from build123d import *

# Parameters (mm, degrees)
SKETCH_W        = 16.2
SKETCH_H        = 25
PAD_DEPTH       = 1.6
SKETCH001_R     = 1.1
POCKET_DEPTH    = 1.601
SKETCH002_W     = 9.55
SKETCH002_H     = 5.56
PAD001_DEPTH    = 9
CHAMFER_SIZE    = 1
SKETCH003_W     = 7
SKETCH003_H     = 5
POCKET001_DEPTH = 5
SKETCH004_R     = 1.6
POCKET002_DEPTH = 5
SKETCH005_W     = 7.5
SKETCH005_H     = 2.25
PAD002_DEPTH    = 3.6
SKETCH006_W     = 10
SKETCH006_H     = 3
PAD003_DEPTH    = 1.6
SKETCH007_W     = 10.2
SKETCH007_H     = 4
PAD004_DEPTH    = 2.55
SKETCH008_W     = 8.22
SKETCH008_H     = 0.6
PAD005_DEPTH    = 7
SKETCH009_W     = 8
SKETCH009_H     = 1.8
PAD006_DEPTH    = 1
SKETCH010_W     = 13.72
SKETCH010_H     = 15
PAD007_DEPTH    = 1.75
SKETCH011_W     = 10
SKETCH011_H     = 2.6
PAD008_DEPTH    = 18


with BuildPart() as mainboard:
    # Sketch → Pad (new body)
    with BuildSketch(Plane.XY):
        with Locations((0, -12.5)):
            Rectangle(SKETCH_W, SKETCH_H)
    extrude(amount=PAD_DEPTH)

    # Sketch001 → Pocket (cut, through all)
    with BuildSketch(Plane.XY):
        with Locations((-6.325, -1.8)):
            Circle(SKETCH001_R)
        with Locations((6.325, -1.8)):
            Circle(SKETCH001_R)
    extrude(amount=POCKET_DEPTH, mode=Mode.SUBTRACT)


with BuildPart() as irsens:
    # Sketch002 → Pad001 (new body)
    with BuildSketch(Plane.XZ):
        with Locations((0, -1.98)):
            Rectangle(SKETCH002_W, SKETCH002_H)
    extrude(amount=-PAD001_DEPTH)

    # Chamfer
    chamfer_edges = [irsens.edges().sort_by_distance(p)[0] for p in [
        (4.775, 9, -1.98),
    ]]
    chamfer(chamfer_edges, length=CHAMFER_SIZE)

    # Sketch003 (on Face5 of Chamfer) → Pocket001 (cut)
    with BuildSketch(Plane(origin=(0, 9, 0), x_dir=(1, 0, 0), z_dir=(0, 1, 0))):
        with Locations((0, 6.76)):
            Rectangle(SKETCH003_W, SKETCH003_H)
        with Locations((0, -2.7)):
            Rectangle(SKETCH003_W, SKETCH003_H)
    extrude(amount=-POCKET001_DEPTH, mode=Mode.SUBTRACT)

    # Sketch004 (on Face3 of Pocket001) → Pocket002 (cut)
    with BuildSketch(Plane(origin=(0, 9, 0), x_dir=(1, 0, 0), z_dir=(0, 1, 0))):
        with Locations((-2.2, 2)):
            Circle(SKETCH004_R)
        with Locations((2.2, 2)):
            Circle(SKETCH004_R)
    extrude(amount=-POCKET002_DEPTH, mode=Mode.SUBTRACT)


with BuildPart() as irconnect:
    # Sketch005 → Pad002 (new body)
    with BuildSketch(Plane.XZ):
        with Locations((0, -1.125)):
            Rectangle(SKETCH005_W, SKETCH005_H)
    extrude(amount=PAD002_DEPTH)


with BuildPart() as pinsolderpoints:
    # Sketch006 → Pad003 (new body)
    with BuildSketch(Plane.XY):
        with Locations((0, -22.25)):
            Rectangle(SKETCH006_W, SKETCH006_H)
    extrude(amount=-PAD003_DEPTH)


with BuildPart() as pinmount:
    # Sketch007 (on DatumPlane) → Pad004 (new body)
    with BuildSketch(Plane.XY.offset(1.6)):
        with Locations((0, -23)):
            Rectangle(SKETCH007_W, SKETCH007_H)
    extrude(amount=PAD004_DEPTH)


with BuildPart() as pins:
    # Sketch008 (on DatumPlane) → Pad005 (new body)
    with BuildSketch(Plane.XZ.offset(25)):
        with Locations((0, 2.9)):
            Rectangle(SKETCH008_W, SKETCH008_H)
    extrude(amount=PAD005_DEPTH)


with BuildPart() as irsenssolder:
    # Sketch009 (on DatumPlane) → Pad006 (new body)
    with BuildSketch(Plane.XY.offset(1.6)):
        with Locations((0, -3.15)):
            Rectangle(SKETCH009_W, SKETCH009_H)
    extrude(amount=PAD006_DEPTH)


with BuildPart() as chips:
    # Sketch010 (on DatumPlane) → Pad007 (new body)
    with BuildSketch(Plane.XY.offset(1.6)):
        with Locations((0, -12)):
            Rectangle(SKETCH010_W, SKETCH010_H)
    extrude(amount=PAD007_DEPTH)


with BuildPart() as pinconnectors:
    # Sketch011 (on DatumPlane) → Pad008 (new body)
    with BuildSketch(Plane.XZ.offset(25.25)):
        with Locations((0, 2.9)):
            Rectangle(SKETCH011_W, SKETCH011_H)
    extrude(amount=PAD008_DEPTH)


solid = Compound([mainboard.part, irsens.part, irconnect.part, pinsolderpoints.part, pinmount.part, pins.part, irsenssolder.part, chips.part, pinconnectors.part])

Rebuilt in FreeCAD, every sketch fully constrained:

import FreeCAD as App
import Part
import Sketcher

V = App.Vector


def edges_at(feature, points):
    """Names of the edges that pass closest to the given points."""
    edges = feature.Shape.Edges
    near = lambda p: min(range(len(edges)), key=lambda i: edges[i].distToShape(Part.Vertex(*p))[0])
    return sorted({f"Edge{near(p) + 1}" for p in points})


def add_polygon(sketch, points):
    """Adds a closed chain of lines whose ends are joined by coincident constraints."""
    first, n = sketch.GeometryCount, len(points)
    for a, b in zip(points, points[1:] + points[:1]):
        sketch.addGeometry(Part.LineSegment(App.Vector(*a, 0), App.Vector(*b, 0)), False)
    for i in range(n):
        sketch.addConstraint(Sketcher.Constraint("Coincident", first + i, 2, first + (i + 1) % n, 1))

doc = App.newDocument("Part")
body = doc.addObject("PartDesign::Body", "Body")

sketch1 = doc.addObject("Sketcher::SketchObject", "Sketch")
body.addObject(sketch1)
sketch1.AttachmentSupport = (doc.XY_Plane, [""])
sketch1.MapMode = "FlatFace"
add_polygon(sketch1, [(-8.1, 0), (-8.1, -25), (8.1, -25), (8.1, 0)])
sketch1.addConstraint(Sketcher.Constraint("Vertical", 0))
sketch1.addConstraint(Sketcher.Constraint("Horizontal", 1))
sketch1.addConstraint(Sketcher.Constraint("Vertical", 2))
sketch1.addConstraint(Sketcher.Constraint("Horizontal", 3))
sketch1.addConstraint(Sketcher.Constraint("Symmetric", 2, 2, 3, 2, -1, 1))
sketch1.addConstraint(Sketcher.Constraint("DistanceY", 0, 2, 0, 1, 25.0))
sketch1.addConstraint(Sketcher.Constraint("DistanceX", 1, 1, 1, 2, 16.2))
pad1 = doc.addObject("PartDesign::Pad", "Pad")
body.addObject(pad1)
pad1.Profile = sketch1
pad1.Length = 1.6

sketch2 = doc.addObject("Sketcher::SketchObject", "Sketch001")
body.addObject(sketch2)
sketch2.AttachmentSupport = (doc.XY_Plane, [""])
sketch2.MapMode = "FlatFace"
sketch2.addGeometry(Part.Circle(V(-6.325, -1.8, 0), V(0, 0, 1), 1.1), False)
sketch2.addGeometry(Part.Circle(V(6.325, -1.8, 0), V(0, 0, 1), 1.1), False)
sketch2.addConstraint(Sketcher.Constraint("Equal", 0, 1))
sketch2.addConstraint(Sketcher.Constraint("Symmetric", 0, 3, 1, 3, -2))
sketch2.addConstraint(Sketcher.Constraint("Diameter", 0, 2.2))
sketch2.addConstraint(Sketcher.Constraint("DistanceY", 0, 3, -1, 1, 1.8))
sketch2.addConstraint(Sketcher.Constraint("DistanceX", 0, 3, 1, 3, 12.65))
pocket1 = doc.addObject("PartDesign::Pocket", "Pocket")
body.addObject(pocket1)
pocket1.Profile = sketch2
pocket1.Type = "ThroughAll"
pocket1.Reversed = True
body2 = doc.addObject("PartDesign::Body", "Body001")

sketch3 = doc.addObject("Sketcher::SketchObject", "Sketch002")
body2.addObject(sketch3)
sketch3.AttachmentSupport = (doc.getObject("XZ_Plane001"), [""])
sketch3.MapMode = "FlatFace"
add_polygon(sketch3, [(-4.775, 0.8), (-4.775, -4.76), (4.775, -4.76), (4.775, 0.8)])
sketch3.addConstraint(Sketcher.Constraint("Vertical", 0))
sketch3.addConstraint(Sketcher.Constraint("Horizontal", 1))
sketch3.addConstraint(Sketcher.Constraint("Vertical", 2))
sketch3.addConstraint(Sketcher.Constraint("Horizontal", 3))
sketch3.addConstraint(Sketcher.Constraint("DistanceX", 1, 1, 1, 2, 9.55))
sketch3.addConstraint(Sketcher.Constraint("DistanceY", 0, 2, 0, 1, 5.56))
sketch3.addConstraint(Sketcher.Constraint("DistanceY", -1, 1, 2, 2, 0.8))
sketch3.addConstraint(Sketcher.Constraint("DistanceX", 0, 2, -1, 1, 4.775))
pad2 = doc.addObject("PartDesign::Pad", "Pad001")
body2.addObject(pad2)
pad2.Profile = sketch3
pad2.Length = 9
pad2.Reversed = True
doc.recompute()

chamfer = doc.addObject("PartDesign::Chamfer", "Chamfer")
body2.addObject(chamfer)
chamfer.Base = (pad2, edges_at(pad2, [(4.775, 9, -1.98)]))
chamfer.Size = 1

sketch4 = doc.addObject("Sketcher::SketchObject", "Sketch003")
body2.addObject(sketch4)
sketch4.AttachmentSupport = (doc.getObject("XZ_Plane001"), [""])
sketch4.MapMode = "FlatFace"
sketch4.AttachmentOffset = App.Placement(V(0, 0, -9), App.Rotation())
add_polygon(sketch4, [(-3.5, -9.26), (-3.5, -4.26), (3.5, -4.26), (3.5, -9.26)])
add_polygon(sketch4, [(-3.5, 0.2), (-3.5, 5.2), (3.5, 5.2), (3.5, 0.2)])
sketch4.addConstraint(Sketcher.Constraint("Vertical", 0))
sketch4.addConstraint(Sketcher.Constraint("Horizontal", 1))
sketch4.addConstraint(Sketcher.Constraint("Vertical", 2))
sketch4.addConstraint(Sketcher.Constraint("Horizontal", 3))
sketch4.addConstraint(Sketcher.Constraint("Vertical", 4))
sketch4.addConstraint(Sketcher.Constraint("Horizontal", 5))
sketch4.addConstraint(Sketcher.Constraint("Vertical", 6))
sketch4.addConstraint(Sketcher.Constraint("Horizontal", 7))
sketch4.addConstraint(Sketcher.Constraint("Vertical", 3, 2, 4, 2))
sketch4.addConstraint(Sketcher.Constraint("Vertical", 2, 2, 5, 2))
sketch4.addConstraint(Sketcher.Constraint("Equal", 2, 4))
sketch4.addConstraint(Sketcher.Constraint("DistanceX", 1, 1, 1, 2, 7.0))
sketch4.addConstraint(Sketcher.Constraint("DistanceY", 0, 1, 0, 2, 5.0))
sketch4.addConstraint(Sketcher.Constraint("DistanceX", 0, 2, -1, 1, 3.5))
sketch4.addConstraint(Sketcher.Constraint("DistanceY", -1, 1, 4, 2, 5.2))
sketch4.addConstraint(Sketcher.Constraint("DistanceY", 0, 2, -1, 1, 4.26))
pocket2 = doc.addObject("PartDesign::Pocket", "Pocket001")
body2.addObject(pocket2)
pocket2.Profile = sketch4
pocket2.Length = 5
pocket2.Reversed = True

sketch5 = doc.addObject("Sketcher::SketchObject", "Sketch004")
body2.addObject(sketch5)
sketch5.AttachmentSupport = (doc.getObject("XZ_Plane001"), [""])
sketch5.MapMode = "FlatFace"
sketch5.AttachmentOffset = App.Placement(V(0, 0, -9), App.Rotation())
sketch5.addGeometry(Part.Circle(V(-2.2, -2, 0), V(0, 0, 1), 1.6), False)
sketch5.addGeometry(Part.Circle(V(2.2, -2, 0), V(0, 0, 1), 1.6), False)
sketch5.addConstraint(Sketcher.Constraint("Equal", 0, 1))
sketch5.addConstraint(Sketcher.Constraint("Symmetric", 0, 3, 1, 3, -2))
sketch5.addConstraint(Sketcher.Constraint("Diameter", 0, 3.2))
sketch5.addConstraint(Sketcher.Constraint("DistanceY", 0, 3, -1, 1, 2.0))
sketch5.addConstraint(Sketcher.Constraint("DistanceX", 0, 3, -1, 1, 2.2))
pocket3 = doc.addObject("PartDesign::Pocket", "Pocket002")
body2.addObject(pocket3)
pocket3.Profile = sketch5
pocket3.Length = 5
pocket3.Reversed = True
body3 = doc.addObject("PartDesign::Body", "Body002")

sketch6 = doc.addObject("Sketcher::SketchObject", "Sketch005")
body3.addObject(sketch6)
sketch6.AttachmentSupport = (doc.getObject("XZ_Plane002"), [""])
sketch6.MapMode = "FlatFace"
add_polygon(sketch6, [(-3.75, 0), (-3.75, -2.25), (3.75, -2.25), (3.75, 0)])
sketch6.addConstraint(Sketcher.Constraint("Vertical", 0))
sketch6.addConstraint(Sketcher.Constraint("Horizontal", 1))
sketch6.addConstraint(Sketcher.Constraint("Vertical", 2))
sketch6.addConstraint(Sketcher.Constraint("Horizontal", 3))
sketch6.addConstraint(Sketcher.Constraint("Symmetric", 2, 2, 3, 2, -1, 1))
sketch6.addConstraint(Sketcher.Constraint("DistanceX", 1, 1, 1, 2, 7.5))
sketch6.addConstraint(Sketcher.Constraint("DistanceY", 0, 2, 0, 1, 2.25))
pad3 = doc.addObject("PartDesign::Pad", "Pad002")
body3.addObject(pad3)
pad3.Profile = sketch6
pad3.Length = 3.6
body4 = doc.addObject("PartDesign::Body", "Body003")

sketch7 = doc.addObject("Sketcher::SketchObject", "Sketch006")
body4.addObject(sketch7)
sketch7.AttachmentSupport = (doc.getObject("XY_Plane003"), [""])
sketch7.MapMode = "FlatFace"
add_polygon(sketch7, [(-5, -20.75), (-5, -23.75), (5, -23.75), (5, -20.75)])
sketch7.addConstraint(Sketcher.Constraint("Vertical", 0))
sketch7.addConstraint(Sketcher.Constraint("Horizontal", 1))
sketch7.addConstraint(Sketcher.Constraint("Vertical", 2))
sketch7.addConstraint(Sketcher.Constraint("Horizontal", 3))
sketch7.addConstraint(Sketcher.Constraint("DistanceX", 1, 1, 1, 2, 10.0))
sketch7.addConstraint(Sketcher.Constraint("DistanceY", 0, 2, 0, 1, 3.0))
sketch7.addConstraint(Sketcher.Constraint("DistanceX", 0, 2, -1, 1, 5.0))
sketch7.addConstraint(Sketcher.Constraint("DistanceY", 0, 2, -1, 1, 23.75))
pad4 = doc.addObject("PartDesign::Pad", "Pad003")
body4.addObject(pad4)
pad4.Profile = sketch7
pad4.Length = 1.6
pad4.Reversed = True
body5 = doc.addObject("PartDesign::Body", "Body004")

sketch8 = doc.addObject("Sketcher::SketchObject", "Sketch007")
body5.addObject(sketch8)
sketch8.AttachmentSupport = (doc.getObject("XY_Plane004"), [""])
sketch8.MapMode = "FlatFace"
sketch8.AttachmentOffset = App.Placement(V(0, 0, 1.6), App.Rotation())
add_polygon(sketch8, [(-5.1, -21), (-5.1, -25), (5.1, -25), (5.1, -21)])
sketch8.addConstraint(Sketcher.Constraint("Vertical", 0))
sketch8.addConstraint(Sketcher.Constraint("Horizontal", 1))
sketch8.addConstraint(Sketcher.Constraint("Vertical", 2))
sketch8.addConstraint(Sketcher.Constraint("Horizontal", 3))
sketch8.addConstraint(Sketcher.Constraint("DistanceY", 0, 2, 0, 1, 4.0))
sketch8.addConstraint(Sketcher.Constraint("DistanceX", 1, 1, 1, 2, 10.2))
sketch8.addConstraint(Sketcher.Constraint("DistanceY", 0, 2, -1, 1, 25.0))
sketch8.addConstraint(Sketcher.Constraint("DistanceX", 0, 2, -1, 1, 5.1))
pad5 = doc.addObject("PartDesign::Pad", "Pad004")
body5.addObject(pad5)
pad5.Profile = sketch8
pad5.Length = 2.55
body6 = doc.addObject("PartDesign::Body", "Body005")

sketch9 = doc.addObject("Sketcher::SketchObject", "Sketch008")
body6.addObject(sketch9)
sketch9.AttachmentSupport = (doc.getObject("XZ_Plane005"), [""])
sketch9.MapMode = "FlatFace"
sketch9.AttachmentOffset = App.Placement(V(0, 0, 25), App.Rotation())
add_polygon(sketch9, [(-4.11, 3.2), (-4.11, 2.6), (4.11, 2.6), (4.11, 3.2)])
sketch9.addConstraint(Sketcher.Constraint("Vertical", 0))
sketch9.addConstraint(Sketcher.Constraint("Horizontal", 1))
sketch9.addConstraint(Sketcher.Constraint("Vertical", 2))
sketch9.addConstraint(Sketcher.Constraint("Horizontal", 3))
sketch9.addConstraint(Sketcher.Constraint("DistanceY", 0, 2, 0, 1, 0.6))
sketch9.addConstraint(Sketcher.Constraint("DistanceX", 1, 1, 1, 2, 8.22))
sketch9.addConstraint(Sketcher.Constraint("DistanceY", -1, 1, 0, 2, 2.6))
sketch9.addConstraint(Sketcher.Constraint("DistanceX", 0, 2, -1, 1, 4.11))
pad6 = doc.addObject("PartDesign::Pad", "Pad005")
body6.addObject(pad6)
pad6.Profile = sketch9
pad6.Length = 7
body7 = doc.addObject("PartDesign::Body", "Body006")

sketch10 = doc.addObject("Sketcher::SketchObject", "Sketch009")
body7.addObject(sketch10)
sketch10.AttachmentSupport = (doc.getObject("XY_Plane006"), [""])
sketch10.MapMode = "FlatFace"
sketch10.AttachmentOffset = App.Placement(V(0, 0, 1.6), App.Rotation())
add_polygon(sketch10, [(-4, -2.25), (-4, -4.05), (4, -4.05), (4, -2.25)])
sketch10.addConstraint(Sketcher.Constraint("Vertical", 0))
sketch10.addConstraint(Sketcher.Constraint("Horizontal", 1))
sketch10.addConstraint(Sketcher.Constraint("Vertical", 2))
sketch10.addConstraint(Sketcher.Constraint("Horizontal", 3))
sketch10.addConstraint(Sketcher.Constraint("DistanceX", 1, 1, 1, 2, 8.0))
sketch10.addConstraint(Sketcher.Constraint("DistanceY", 0, 2, 0, 1, 1.8))
sketch10.addConstraint(Sketcher.Constraint("DistanceX", 0, 2, -1, 1, 4.0))
sketch10.addConstraint(Sketcher.Constraint("DistanceY", 0, 2, -1, 1, 4.05))
pad7 = doc.addObject("PartDesign::Pad", "Pad006")
body7.addObject(pad7)
pad7.Profile = sketch10
pad7.Length = 1
body8 = doc.addObject("PartDesign::Body", "Body007")

sketch11 = doc.addObject("Sketcher::SketchObject", "Sketch010")
body8.addObject(sketch11)
sketch11.AttachmentSupport = (doc.getObject("XY_Plane007"), [""])
sketch11.MapMode = "FlatFace"
sketch11.AttachmentOffset = App.Placement(V(0, 0, 1.6), App.Rotation())
add_polygon(sketch11, [(-6.86, -4.5), (-6.86, -19.5), (6.86, -19.5), (6.86, -4.5)])
sketch11.addConstraint(Sketcher.Constraint("Vertical", 0))
sketch11.addConstraint(Sketcher.Constraint("Horizontal", 1))
sketch11.addConstraint(Sketcher.Constraint("Vertical", 2))
sketch11.addConstraint(Sketcher.Constraint("Horizontal", 3))
sketch11.addConstraint(Sketcher.Constraint("DistanceY", 0, 2, 0, 1, 15.0))
sketch11.addConstraint(Sketcher.Constraint("DistanceX", 1, 1, 1, 2, 13.72))
sketch11.addConstraint(Sketcher.Constraint("DistanceY", 0, 2, -1, 1, 19.5))
sketch11.addConstraint(Sketcher.Constraint("DistanceX", 0, 2, -1, 1, 6.86))
pad8 = doc.addObject("PartDesign::Pad", "Pad007")
body8.addObject(pad8)
pad8.Profile = sketch11
pad8.Length = 1.75
body9 = doc.addObject("PartDesign::Body", "Body008")

sketch12 = doc.addObject("Sketcher::SketchObject", "Sketch011")
body9.addObject(sketch12)
sketch12.AttachmentSupport = (doc.getObject("XZ_Plane008"), [""])
sketch12.MapMode = "FlatFace"
sketch12.AttachmentOffset = App.Placement(V(0, 0, 25.25), App.Rotation())
add_polygon(sketch12, [(-5, 4.2), (-5, 1.6), (5, 1.6), (5, 4.2)])
sketch12.addConstraint(Sketcher.Constraint("Vertical", 0))
sketch12.addConstraint(Sketcher.Constraint("Horizontal", 1))
sketch12.addConstraint(Sketcher.Constraint("Vertical", 2))
sketch12.addConstraint(Sketcher.Constraint("Horizontal", 3))
sketch12.addConstraint(Sketcher.Constraint("DistanceX", 1, 1, 1, 2, 10.0))
sketch12.addConstraint(Sketcher.Constraint("DistanceY", 0, 2, 0, 1, 2.6))
sketch12.addConstraint(Sketcher.Constraint("DistanceX", 0, 2, -1, 1, 5.0))
sketch12.addConstraint(Sketcher.Constraint("DistanceY", -1, 1, 0, 2, 1.6))
pad9 = doc.addObject("PartDesign::Pad", "Pad008")
body9.addObject(pad9)
pad9.Profile = sketch12
pad9.Length = 18

doc.recompute()
